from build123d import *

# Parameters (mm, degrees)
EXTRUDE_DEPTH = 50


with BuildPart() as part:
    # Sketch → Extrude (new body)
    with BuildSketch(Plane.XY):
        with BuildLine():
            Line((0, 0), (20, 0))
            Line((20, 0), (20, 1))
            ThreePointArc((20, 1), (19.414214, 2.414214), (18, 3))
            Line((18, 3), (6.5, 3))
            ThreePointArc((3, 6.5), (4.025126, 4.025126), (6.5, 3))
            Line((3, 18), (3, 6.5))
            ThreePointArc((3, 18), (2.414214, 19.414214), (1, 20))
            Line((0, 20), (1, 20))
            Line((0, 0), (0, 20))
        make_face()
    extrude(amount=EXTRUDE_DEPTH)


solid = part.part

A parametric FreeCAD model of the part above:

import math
import FreeCAD as App
import Part
import Sketcher

doc = App.newDocument("Part")
body = doc.addObject("PartDesign::Body", "Body")

sketch1 = body.newObject("Sketcher::SketchObject", "Sketch")
sketch1.AttachmentSupport = (doc.getObject("XY_Plane"), [""])
sketch1.MapMode = "FlatFace"
sketch1.addGeometry([
    Part.LineSegment(App.Vector(0, 0, 0), App.Vector(20, 0, 0)),
    Part.LineSegment(App.Vector(20, 0, 0), App.Vector(20, 1, 0)),
    Part.ArcOfCircle(Part.Circle(App.Vector(18, 1, 0), App.Vector(0, 0, 1), 2), math.radians(0), math.radians(90)),
    Part.LineSegment(App.Vector(18, 3, 0), App.Vector(6.5, 3, 0)),
    Part.ArcOfCircle(Part.Circle(App.Vector(6.5, 6.5, 0), App.Vector(0, 0, 1), 3.5), math.radians(180), math.radians(270)),
    Part.LineSegment(App.Vector(3, 6.5, 0), App.Vector(3, 18, 0)),
    Part.ArcOfCircle(Part.Circle(App.Vector(1, 18, 0), App.Vector(0, 0, 1), 2), math.radians(0), math.radians(90)),
    Part.LineSegment(App.Vector(1, 20, 0), App.Vector(0, 20, 0)),
    Part.LineSegment(App.Vector(0, 20, 0), App.Vector(0, 0, 0)),
], False)
sketch1.addConstraint([
    Sketcher.Constraint("Coincident", 0, 2, 1, 1),
    Sketcher.Constraint("Tangent", 1, 2, 2, 1),
    Sketcher.Constraint("Tangent", 2, 2, 3, 1),
    Sketcher.Constraint("Tangent", 3, 2, 4, 2),
    Sketcher.Constraint("Tangent", 4, 1, 5, 1),
    Sketcher.Constraint("Tangent", 5, 2, 6, 1),
    Sketcher.Constraint("Tangent", 6, 2, 7, 1),
    Sketcher.Constraint("Coincident", 7, 2, 8, 1),
    Sketcher.Constraint("Coincident", 8, 2, 0, 1),
    Sketcher.Constraint("Horizontal", 0),
    Sketcher.Constraint("Vertical", 1),
    Sketcher.Constraint("Horizontal", 3),
    Sketcher.Constraint("Vertical", 5),
    Sketcher.Constraint("Horizontal", 7),
    Sketcher.Constraint("Vertical", 8),
    Sketcher.Constraint("Coincident", 8, 2, -1, 1),
    Sketcher.Constraint("Equal", 2, 6),
    Sketcher.Constraint("Equal", 7, 1),
    Sketcher.Constraint("Equal", 3, 5),
    Sketcher.Constraint("Radius", 2, 1.999999),
    Sketcher.Constraint("Radius", 4, 3.499999),
    Sketcher.Constraint("DistanceX", 0, 1, 0, 2, 20.0),
    Sketcher.Constraint("DistanceX", 7, 2, 7, 1, 1.0),
])
pad1 = body.newObject("PartDesign::Pad", "Pad")
pad1.Profile = sketch1
pad1.Length = 50

doc.recompute()
